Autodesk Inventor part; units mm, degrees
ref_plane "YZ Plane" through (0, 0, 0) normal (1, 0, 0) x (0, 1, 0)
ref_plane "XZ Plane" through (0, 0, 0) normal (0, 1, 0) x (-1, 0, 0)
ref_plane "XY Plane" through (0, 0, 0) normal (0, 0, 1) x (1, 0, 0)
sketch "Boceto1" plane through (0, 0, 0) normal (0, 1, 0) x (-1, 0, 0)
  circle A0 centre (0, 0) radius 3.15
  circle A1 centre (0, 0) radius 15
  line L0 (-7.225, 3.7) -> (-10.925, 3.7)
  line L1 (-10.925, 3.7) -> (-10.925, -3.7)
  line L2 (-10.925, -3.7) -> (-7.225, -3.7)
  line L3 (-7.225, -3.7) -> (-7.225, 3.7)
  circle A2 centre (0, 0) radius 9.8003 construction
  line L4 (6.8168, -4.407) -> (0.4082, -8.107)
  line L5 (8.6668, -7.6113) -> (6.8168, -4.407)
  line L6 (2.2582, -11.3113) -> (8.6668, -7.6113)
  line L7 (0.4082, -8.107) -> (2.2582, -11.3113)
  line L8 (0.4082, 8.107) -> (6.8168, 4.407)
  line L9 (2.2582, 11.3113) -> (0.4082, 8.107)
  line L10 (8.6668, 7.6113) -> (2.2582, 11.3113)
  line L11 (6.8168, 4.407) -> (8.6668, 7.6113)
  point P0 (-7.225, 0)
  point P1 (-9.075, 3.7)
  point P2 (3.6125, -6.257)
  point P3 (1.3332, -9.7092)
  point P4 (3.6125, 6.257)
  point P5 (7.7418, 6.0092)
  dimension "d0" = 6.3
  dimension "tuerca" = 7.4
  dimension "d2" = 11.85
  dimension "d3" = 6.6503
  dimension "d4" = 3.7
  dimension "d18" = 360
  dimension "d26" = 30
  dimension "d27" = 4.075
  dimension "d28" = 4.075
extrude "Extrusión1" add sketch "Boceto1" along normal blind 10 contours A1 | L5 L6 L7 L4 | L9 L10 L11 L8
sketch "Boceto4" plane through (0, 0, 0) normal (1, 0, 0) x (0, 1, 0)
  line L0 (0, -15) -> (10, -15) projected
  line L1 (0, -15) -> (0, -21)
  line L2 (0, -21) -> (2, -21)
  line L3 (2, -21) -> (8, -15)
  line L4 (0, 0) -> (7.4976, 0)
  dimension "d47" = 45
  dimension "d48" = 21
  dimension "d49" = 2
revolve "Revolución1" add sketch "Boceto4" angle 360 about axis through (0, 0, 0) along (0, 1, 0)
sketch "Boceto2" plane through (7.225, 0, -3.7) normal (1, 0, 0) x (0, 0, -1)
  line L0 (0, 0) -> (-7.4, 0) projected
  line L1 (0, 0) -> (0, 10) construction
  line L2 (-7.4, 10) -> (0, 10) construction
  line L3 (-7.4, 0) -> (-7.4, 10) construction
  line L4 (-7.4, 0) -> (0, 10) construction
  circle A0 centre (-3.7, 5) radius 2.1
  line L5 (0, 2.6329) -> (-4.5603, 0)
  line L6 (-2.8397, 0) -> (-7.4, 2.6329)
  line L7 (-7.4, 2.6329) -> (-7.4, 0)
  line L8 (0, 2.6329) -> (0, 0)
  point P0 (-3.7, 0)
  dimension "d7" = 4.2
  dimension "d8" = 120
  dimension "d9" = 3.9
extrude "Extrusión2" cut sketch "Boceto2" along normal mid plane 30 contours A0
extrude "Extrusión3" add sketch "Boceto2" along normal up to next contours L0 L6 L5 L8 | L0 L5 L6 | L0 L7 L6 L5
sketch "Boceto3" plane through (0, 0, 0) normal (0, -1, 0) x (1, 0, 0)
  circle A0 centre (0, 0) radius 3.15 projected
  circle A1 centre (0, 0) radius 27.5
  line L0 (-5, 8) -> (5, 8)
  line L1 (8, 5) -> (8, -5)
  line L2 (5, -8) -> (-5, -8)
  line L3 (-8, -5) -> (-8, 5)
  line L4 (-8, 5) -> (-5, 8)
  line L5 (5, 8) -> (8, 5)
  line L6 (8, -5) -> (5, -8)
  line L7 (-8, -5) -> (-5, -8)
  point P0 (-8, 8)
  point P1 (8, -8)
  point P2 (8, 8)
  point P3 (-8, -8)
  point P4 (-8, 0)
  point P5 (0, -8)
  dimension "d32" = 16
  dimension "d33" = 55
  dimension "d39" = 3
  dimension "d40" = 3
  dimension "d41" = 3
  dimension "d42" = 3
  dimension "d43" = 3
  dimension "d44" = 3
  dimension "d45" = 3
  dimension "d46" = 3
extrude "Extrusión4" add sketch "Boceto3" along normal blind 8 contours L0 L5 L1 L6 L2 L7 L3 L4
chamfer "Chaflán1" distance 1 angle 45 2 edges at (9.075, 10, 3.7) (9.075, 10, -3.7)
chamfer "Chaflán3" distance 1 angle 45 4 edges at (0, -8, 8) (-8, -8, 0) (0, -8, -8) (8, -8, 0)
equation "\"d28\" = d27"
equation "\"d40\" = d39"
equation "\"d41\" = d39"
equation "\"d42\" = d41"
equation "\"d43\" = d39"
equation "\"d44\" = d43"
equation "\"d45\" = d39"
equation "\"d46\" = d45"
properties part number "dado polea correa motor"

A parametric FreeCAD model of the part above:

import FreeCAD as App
import Part
import Sketcher
Q = App.Units.Quantity


def edges_at(feature, points):
    """Names of the edges that pass closest to the given points."""
    edges = feature.Shape.Edges
    near = lambda p: min(range(len(edges)), key=lambda i: edges[i].distToShape(Part.Vertex(*p))[0])
    return sorted({f"Edge{near(p) + 1}" for p in points})

doc = App.newDocument("Part")
body = doc.addObject("PartDesign::Body", "Body")

sketch1 = body.newObject("Sketcher::SketchObject", "Sketch")
sketch1.AttachmentSupport = (doc.getObject("XZ_Plane"), [""])
sketch1.MapMode = "FlatFace"
sketch1.addGeometry([
    Part.Circle(App.Vector(0, 0, 0), App.Vector(0, 0, 1), 15),
    Part.LineSegment(App.Vector(10.9, 3.7, 0), App.Vector(7.2, 3.7, 0)),
    Part.LineSegment(App.Vector(7.2, 3.7, 0), App.Vector(7.2, -3.7, 0)),
    Part.LineSegment(App.Vector(7.2, -3.7, 0), App.Vector(10.9, -3.7, 0)),
    Part.LineSegment(App.Vector(10.9, -3.7, 0), App.Vector(10.9, 3.7, 0)),
    Part.Circle(App.Vector(0, 0, 0), App.Vector(0, 0, 1), 3.1),
], False)
sketch1.addConstraint([
    Sketcher.Constraint("Coincident", 1, 2, 2, 1),
    Sketcher.Constraint("Coincident", 2, 2, 3, 1),
    Sketcher.Constraint("Coincident", 3, 2, 4, 1),
    Sketcher.Constraint("Coincident", 4, 2, 1, 1),
    Sketcher.Constraint("Horizontal", 1),
    Sketcher.Constraint("Vertical", 2),
    Sketcher.Constraint("Horizontal", 3),
    Sketcher.Constraint("Vertical", 4),
    Sketcher.Constraint("Coincident", 0, 3, -1, 1),
    Sketcher.Constraint("Coincident", 5, 3, -1, 1),
    Sketcher.Constraint("Diameter", 0, Q("30 mm")),
    Sketcher.Constraint("Diameter", 5, Q("6.3 mm")),
    Sketcher.Constraint("DistanceX", 1, 2, 1, 1, Q("3.7 mm")),
    Sketcher.Constraint("DistanceY", 2, 2, 2, 1, Q("7.4 mm")),
    Sketcher.Constraint("DistanceY", -1, 1, 1, 2, Q("3.7 mm")),
    Sketcher.Constraint("DistanceX", -1, 1, 1, 2, Q("7.225 mm")),
])
pad1 = body.newObject("PartDesign::Pad", "Pad")
pad1.Profile = sketch1
pad1.Length = 10
pad1.Reversed = True

sketch2 = body.newObject("Sketcher::SketchObject", "Sketch001")
sketch2.AttachmentSupport = (doc.getObject("YZ_Plane"), [""])
sketch2.MapMode = "FlatFace"
sketch2.addGeometry([
    Part.LineSegment(App.Vector(8, -15, 0), App.Vector(0, -15, 0)),
    Part.LineSegment(App.Vector(0, -15, 0), App.Vector(0, -21, 0)),
    Part.LineSegment(App.Vector(0, -21, 0), App.Vector(2, -21, 0)),
    Part.LineSegment(App.Vector(2, -21, 0), App.Vector(8, -15, 0)),
], False)
sketch2.addConstraint([
    Sketcher.Constraint("Coincident", 0, 2, 1, 1),
    Sketcher.Constraint("Coincident", 1, 2, 2, 1),
    Sketcher.Constraint("Coincident", 2, 2, 3, 1),
    Sketcher.Constraint("Coincident", 3, 2, 0, 1),
    Sketcher.Constraint("Horizontal", 0),
    Sketcher.Constraint("Vertical", 1),
    Sketcher.Constraint("Horizontal", 2),
    Sketcher.Constraint("PointOnObject", 0, 2, -2),
    Sketcher.Constraint("DistanceX", 2, 1, 2, 2, Q("2 mm")),
    Sketcher.Constraint("Angle", 3, Q("45 deg")),
    Sketcher.Constraint("DistanceY", 1, 2, -1, 1, Q("21 mm")),
    Sketcher.Constraint("DistanceX", 0, 2, 0, 1, Q("8 mm")),
])
revolution = body.newObject("PartDesign::Revolution", "Revolution")
revolution.Profile = sketch2
revolution.ReferenceAxis = (sketch2, ["H_Axis"])
revolution.Angle = 360

sketch3 = body.newObject("Sketcher::SketchObject", "Sketch002")
sketch3.AttachmentSupport = (doc.getObject("YZ_Plane"), [""])
sketch3.MapMode = "FlatFace"
sketch3.AttachmentOffset = App.Placement(App.Vector(0, 0, 7.225), App.Rotation())
sketch3.addGeometry(Part.Circle(App.Vector(5, 0, 0), App.Vector(0, 0, 1), 2.1), False)
sketch3.addConstraint([
    Sketcher.Constraint("PointOnObject", 0, 3, -1),
    Sketcher.Constraint("Diameter", 0, Q("4.2 mm")),
    Sketcher.Constraint("DistanceX", -1, 1, 0, 3, Q("5 mm")),
])
pocket1 = body.newObject("PartDesign::Pocket", "Pocket")
pocket1.Profile = sketch3
pocket1.Length = 30
pocket1.Midplane = True

sketch4 = body.newObject("Sketcher::SketchObject", "Sketch003")
sketch4.AttachmentSupport = (doc.getObject("YZ_Plane"), [""])
sketch4.MapMode = "FlatFace"
sketch4.AttachmentOffset = App.Placement(App.Vector(0, 0, 7.225), App.Rotation())
sketch4.addGeometry([
    Part.LineSegment(App.Vector(0, -3.7, 0), App.Vector(2.6, -3.7, 0)),
    Part.LineSegment(App.Vector(2.6, -3.7, 0), App.Vector(0.5, 0, 0)),
    Part.LineSegment(App.Vector(0.5, 0, 0), App.Vector(2.6, 3.7, 0)),
    Part.LineSegment(App.Vector(2.6, 3.7, 0), App.Vector(0, 3.7, 0)),
    Part.LineSegment(App.Vector(0, 3.7, 0), App.Vector(0, -3.7, 0)),
], False)
sketch4.addConstraint([
    Sketcher.Constraint("Coincident", 0, 2, 1, 1),
    Sketcher.Constraint("Coincident", 1, 2, 2, 1),
    Sketcher.Constraint("Coincident", 2, 2, 3, 1),
    Sketcher.Constraint("Coincident", 3, 2, 4, 1),
    Sketcher.Constraint("Coincident", 4, 2, 0, 1),
    Sketcher.Constraint("Horizontal", 0),
    Sketcher.Constraint("Horizontal", 3),
    Sketcher.Constraint("Vertical", 4),
    Sketcher.Constraint("Symmetric", 3, 2, 4, 2, -1, 1),
    Sketcher.Constraint("PointOnObject", 1, 2, -1),
    Sketcher.Constraint("Vertical", 0, 2, 2, 2),
    Sketcher.Constraint("Angle", 1, Q("120 deg")),
    Sketcher.Constraint("DistanceY", 4, 2, 4, 1, Q("7.4 mm")),
    Sketcher.Constraint("DistanceX", 0, 1, 0, 2, Q("2.633 mm")),
])
pad2 = body.newObject("PartDesign::Pad", "Pad001")
pad2.Profile = sketch4
pad2.Type = "UpToFirst"

sketch5 = body.newObject("Sketcher::SketchObject", "Sketch004")
sketch5.AttachmentSupport = (doc.getObject("XZ_Plane"), [""])
sketch5.MapMode = "FlatFace"
sketch5.addGeometry([
    Part.LineSegment(App.Vector(5, 8, 0), App.Vector(-5, 8, 0)),
    Part.LineSegment(App.Vector(-5, 8, 0), App.Vector(-8, 5, 0)),
    Part.LineSegment(App.Vector(-8, 5, 0), App.Vector(-8, -5, 0)),
    Part.LineSegment(App.Vector(-8, -5, 0), App.Vector(-5, -8, 0)),
    Part.LineSegment(App.Vector(-5, -8, 0), App.Vector(5, -8, 0)),
    Part.LineSegment(App.Vector(5, -8, 0), App.Vector(8, -5, 0)),
    Part.LineSegment(App.Vector(8, -5, 0), App.Vector(8, 5, 0)),
    Part.LineSegment(App.Vector(8, 5, 0), App.Vector(5, 8, 0)),
    Part.Circle(App.Vector(0, 0, 0), App.Vector(0, 0, 1), 3.1),
], False)
sketch5.addConstraint([
    Sketcher.Constraint("Coincident", 0, 2, 1, 1),
    Sketcher.Constraint("Coincident", 1, 2, 2, 1),
    Sketcher.Constraint("Coincident", 2, 2, 3, 1),
    Sketcher.Constraint("Coincident", 3, 2, 4, 1),
    Sketcher.Constraint("Coincident", 4, 2, 5, 1),
    Sketcher.Constraint("Coincident", 5, 2, 6, 1),
    Sketcher.Constraint("Coincident", 6, 2, 7, 1),
    Sketcher.Constraint("Coincident", 7, 2, 0, 1),
    Sketcher.Constraint("Horizontal", 0),
    Sketcher.Constraint("Vertical", 2),
    Sketcher.Constraint("Horizontal", 4),
    Sketcher.Constraint("Vertical", 6),
    Sketcher.Constraint("Coincident", 8, 3, -1, 1),
    Sketcher.Constraint("Symmetric", 0, 2, 4, 2, -1, 1),
    Sketcher.Constraint("Symmetric", 1, 2, 5, 2, -1, 1),
    Sketcher.Constraint("Perpendicular", 1, 3),
    Sketcher.Constraint("Perpendicular", 5, 7),
    Sketcher.Constraint("Horizontal", 2, 2, 5, 2),
    Sketcher.Constraint("Horizontal", 1, 2, 6, 2),
    Sketcher.Constraint("Vertical", 0, 2, 3, 2),
    Sketcher.Constraint("Equal", 4, 2),
    Sketcher.Constraint("DistanceX", 1, 2, 0, 2, Q("3 mm")),
    Sketcher.Constraint("DistanceY", 3, 2, 0, 2, Q("16 mm")),
    Sketcher.Constraint("Diameter", 8, Q("6.3 mm")),
])
pad3 = body.newObject("PartDesign::Pad", "Pad002")
pad3.Profile = sketch5
pad3.Length = 8
doc.recompute()

chamfer = body.newObject("PartDesign::Chamfer", "Chamfer")
chamfer.Base = (pad3, edges_at(pad3, [(9.075, 10, 3.7), (9.075, 10, -3.7)]))
chamfer.Size = 1
doc.recompute()

chamfer2 = body.newObject("PartDesign::Chamfer", "Chamfer001")
chamfer2.Base = (chamfer, edges_at(chamfer, [
    (0, -8, 8),
    (-8, -8, 0),
    (0, -8, -8),
    (8, -8, 0),
]))
chamfer2.Size = 1

doc.recompute()
